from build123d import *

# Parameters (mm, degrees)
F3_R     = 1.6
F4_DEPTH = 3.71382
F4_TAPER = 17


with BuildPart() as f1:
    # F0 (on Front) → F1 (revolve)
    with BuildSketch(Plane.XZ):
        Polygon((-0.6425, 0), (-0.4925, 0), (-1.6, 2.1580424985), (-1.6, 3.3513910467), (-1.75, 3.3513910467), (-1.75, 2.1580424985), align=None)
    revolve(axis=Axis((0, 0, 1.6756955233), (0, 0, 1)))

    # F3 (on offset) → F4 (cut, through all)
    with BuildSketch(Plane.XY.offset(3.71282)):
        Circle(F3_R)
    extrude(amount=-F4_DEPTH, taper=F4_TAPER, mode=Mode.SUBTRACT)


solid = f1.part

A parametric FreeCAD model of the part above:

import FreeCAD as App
import Part
import Sketcher
Q = App.Units.Quantity


def add_polygon(sketch, points):
    """Adds a closed chain of lines whose ends are joined by coincident constraints."""
    first, n = sketch.GeometryCount, len(points)
    for a, b in zip(points, points[1:] + points[:1]):
        sketch.addGeometry(Part.LineSegment(App.Vector(*a, 0), App.Vector(*b, 0)), False)
    for i in range(n):
        sketch.addConstraint(Sketcher.Constraint("Coincident", first + i, 2, first + (i + 1) % n, 1))

doc = App.newDocument("Part")
body = doc.addObject("PartDesign::Body", "Body")

sketch1 = body.newObject("Sketcher::SketchObject", "Sketch")
sketch1.AttachmentSupport = (doc.getObject("XZ_Plane"), [""])
sketch1.MapMode = "FlatFace"
add_polygon(sketch1, [(-0.64, 0), (-0.49, 0), (-1.6, 2.16), (-1.6, 3.35), (-1.75, 3.35), (-1.75, 2.16)])
sketch1.addConstraint([
    Sketcher.Constraint("Horizontal", 0),
    Sketcher.Constraint("Vertical", 2),
    Sketcher.Constraint("Horizontal", 3),
    Sketcher.Constraint("Vertical", 4),
    Sketcher.Constraint("PointOnObject", 0, 2, -1),
    Sketcher.Constraint("Parallel", 1, 5),
    Sketcher.Constraint("Horizontal", 1, 2, 4, 2),
    Sketcher.Constraint("DistanceX", 0, 1, 0, 2, Q("0.15 mm")),
    Sketcher.Constraint("DistanceX", 1, 2, -1, 1, Q("1.6 mm")),
    Sketcher.Constraint("DistanceY", 2, 1, 2, 2, Q("1.193349 mm")),
    Sketcher.Constraint("DistanceX", 0, 2, -1, 1, Q("0.4925 mm")),
    Sketcher.Constraint("DistanceY", -1, 1, 2, 2, Q("3.351391 mm")),
])
revolution = body.newObject("PartDesign::Revolution", "Revolution")
revolution.Profile = sketch1
revolution.ReferenceAxis = (sketch1, ["V_Axis"])
revolution.Angle = 360

sketch2 = body.newObject("Sketcher::SketchObject", "Sketch001")
sketch2.AttachmentSupport = (doc.getObject("XY_Plane"), [""])
sketch2.MapMode = "FlatFace"
sketch2.AttachmentOffset = App.Placement(App.Vector(0, 0, 3.71282), App.Rotation())
sketch2.addGeometry(Part.Circle(App.Vector(0, 0, 0), App.Vector(0, 0, 1), 1.6), False)
sketch2.addConstraint([
    Sketcher.Constraint("Coincident", 0, 3, -1, 1),
    Sketcher.Constraint("Diameter", 0, Q("3.2 mm")),
])
pocket1 = body.newObject("PartDesign::Pocket", "Pocket")
pocket1.Profile = sketch2
pocket1.Type = "ThroughAll"
pocket1.TaperAngle = -17

doc.recompute()
